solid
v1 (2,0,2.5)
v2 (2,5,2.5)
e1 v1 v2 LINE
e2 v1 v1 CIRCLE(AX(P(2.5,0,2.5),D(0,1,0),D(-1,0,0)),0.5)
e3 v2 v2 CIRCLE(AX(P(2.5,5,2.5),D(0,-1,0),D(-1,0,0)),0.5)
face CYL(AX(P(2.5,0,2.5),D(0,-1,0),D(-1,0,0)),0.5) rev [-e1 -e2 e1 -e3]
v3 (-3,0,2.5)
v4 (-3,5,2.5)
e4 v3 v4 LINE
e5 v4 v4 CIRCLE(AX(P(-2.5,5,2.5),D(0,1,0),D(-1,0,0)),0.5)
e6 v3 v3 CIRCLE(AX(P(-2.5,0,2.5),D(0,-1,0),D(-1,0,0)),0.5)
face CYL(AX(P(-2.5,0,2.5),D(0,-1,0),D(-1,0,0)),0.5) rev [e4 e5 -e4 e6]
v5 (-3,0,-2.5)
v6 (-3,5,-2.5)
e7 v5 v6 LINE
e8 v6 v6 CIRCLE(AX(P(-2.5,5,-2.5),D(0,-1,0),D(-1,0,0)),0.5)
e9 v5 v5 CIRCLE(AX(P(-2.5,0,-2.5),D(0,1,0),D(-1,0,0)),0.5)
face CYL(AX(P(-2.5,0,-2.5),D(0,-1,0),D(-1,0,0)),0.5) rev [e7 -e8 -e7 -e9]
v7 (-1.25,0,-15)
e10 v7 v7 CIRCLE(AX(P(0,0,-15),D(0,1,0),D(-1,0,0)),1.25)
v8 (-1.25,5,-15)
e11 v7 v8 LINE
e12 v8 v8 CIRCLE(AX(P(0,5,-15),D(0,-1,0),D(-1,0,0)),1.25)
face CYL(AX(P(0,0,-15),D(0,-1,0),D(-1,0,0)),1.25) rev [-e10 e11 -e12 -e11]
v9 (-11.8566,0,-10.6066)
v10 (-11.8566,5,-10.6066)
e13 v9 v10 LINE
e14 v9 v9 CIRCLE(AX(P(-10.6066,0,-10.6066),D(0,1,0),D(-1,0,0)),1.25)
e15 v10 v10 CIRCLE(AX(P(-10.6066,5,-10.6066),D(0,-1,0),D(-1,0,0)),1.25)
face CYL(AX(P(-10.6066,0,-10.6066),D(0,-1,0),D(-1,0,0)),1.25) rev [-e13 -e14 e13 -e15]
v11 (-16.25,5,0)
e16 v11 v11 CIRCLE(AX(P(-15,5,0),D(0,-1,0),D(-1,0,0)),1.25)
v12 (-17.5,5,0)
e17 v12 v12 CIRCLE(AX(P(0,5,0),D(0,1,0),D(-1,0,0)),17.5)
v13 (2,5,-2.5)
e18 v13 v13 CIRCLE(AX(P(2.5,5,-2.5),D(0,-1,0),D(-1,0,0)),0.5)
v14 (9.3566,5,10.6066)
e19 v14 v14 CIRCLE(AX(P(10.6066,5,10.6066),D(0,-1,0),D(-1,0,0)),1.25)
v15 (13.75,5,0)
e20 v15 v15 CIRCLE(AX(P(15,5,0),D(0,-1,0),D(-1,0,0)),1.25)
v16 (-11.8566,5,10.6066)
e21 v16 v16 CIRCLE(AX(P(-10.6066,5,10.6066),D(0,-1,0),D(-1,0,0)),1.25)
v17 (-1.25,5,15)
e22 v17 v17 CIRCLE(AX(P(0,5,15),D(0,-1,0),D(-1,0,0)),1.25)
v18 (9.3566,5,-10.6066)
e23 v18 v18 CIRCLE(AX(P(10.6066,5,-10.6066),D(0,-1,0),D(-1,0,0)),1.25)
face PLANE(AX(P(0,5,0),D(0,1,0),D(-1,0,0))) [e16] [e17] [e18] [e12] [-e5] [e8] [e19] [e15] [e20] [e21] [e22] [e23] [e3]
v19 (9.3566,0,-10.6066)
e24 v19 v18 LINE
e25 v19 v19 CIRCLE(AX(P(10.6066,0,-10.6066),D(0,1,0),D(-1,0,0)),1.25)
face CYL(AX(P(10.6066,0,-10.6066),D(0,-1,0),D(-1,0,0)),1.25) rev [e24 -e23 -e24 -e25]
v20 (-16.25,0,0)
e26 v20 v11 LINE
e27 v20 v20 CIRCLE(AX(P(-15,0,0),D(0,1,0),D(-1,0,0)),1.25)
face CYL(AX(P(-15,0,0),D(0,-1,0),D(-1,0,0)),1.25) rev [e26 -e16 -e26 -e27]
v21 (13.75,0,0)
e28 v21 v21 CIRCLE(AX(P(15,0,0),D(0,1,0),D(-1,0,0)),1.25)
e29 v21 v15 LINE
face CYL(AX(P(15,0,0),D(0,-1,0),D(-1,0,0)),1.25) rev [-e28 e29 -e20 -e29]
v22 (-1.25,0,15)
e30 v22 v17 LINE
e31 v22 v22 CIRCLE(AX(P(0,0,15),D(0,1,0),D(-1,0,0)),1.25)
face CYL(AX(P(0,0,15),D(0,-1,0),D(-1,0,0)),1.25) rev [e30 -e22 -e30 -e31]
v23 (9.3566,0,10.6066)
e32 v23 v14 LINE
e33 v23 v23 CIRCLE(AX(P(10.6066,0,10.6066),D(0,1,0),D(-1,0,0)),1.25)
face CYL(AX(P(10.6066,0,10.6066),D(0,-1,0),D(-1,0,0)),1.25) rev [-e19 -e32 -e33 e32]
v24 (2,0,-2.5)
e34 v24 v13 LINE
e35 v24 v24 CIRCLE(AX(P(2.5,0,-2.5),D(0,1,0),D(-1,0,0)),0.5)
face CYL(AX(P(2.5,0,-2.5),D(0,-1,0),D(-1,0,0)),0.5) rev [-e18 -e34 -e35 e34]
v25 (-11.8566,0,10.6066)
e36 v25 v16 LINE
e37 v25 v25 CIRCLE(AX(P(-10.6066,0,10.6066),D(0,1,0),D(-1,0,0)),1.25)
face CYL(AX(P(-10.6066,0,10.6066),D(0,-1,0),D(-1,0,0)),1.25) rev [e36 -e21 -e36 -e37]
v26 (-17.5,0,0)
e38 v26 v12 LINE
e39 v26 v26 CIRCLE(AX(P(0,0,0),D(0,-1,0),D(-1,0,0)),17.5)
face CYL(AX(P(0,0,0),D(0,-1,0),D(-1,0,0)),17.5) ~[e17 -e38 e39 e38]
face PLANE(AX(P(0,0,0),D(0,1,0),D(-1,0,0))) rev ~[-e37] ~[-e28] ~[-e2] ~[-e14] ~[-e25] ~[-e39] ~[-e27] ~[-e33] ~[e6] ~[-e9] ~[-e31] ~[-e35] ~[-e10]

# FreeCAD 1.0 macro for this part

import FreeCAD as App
import Part
import Sketcher
from FreeCAD import Vector
Q = App.Units.Quantity

doc = App.newDocument("Part")
body = doc.addObject("PartDesign::Body", "Body")

# Sketch on XZ plane
sketch1 = body.newObject("Sketcher::SketchObject", "Sketch")
sketch1.AttachmentSupport = (doc.getObject("XZ_Plane"), [""])
sketch1.MapMode = "FlatFace"
sketch1.addGeometry(Part.Circle(Vector(0, 0, 0), Vector(0, 0, 1), 17.5), False)
sketch1.addGeometry(Part.Circle(Vector(-2.5, 2.5, 0), Vector(0, 0, 1), 0.5), False)
sketch1.addGeometry(Part.Circle(Vector(-2.5, -2.5, 0), Vector(0, 0, 1), 0.5), False)
sketch1.addGeometry(Part.Circle(Vector(-10.6066, 10.6066, 0), Vector(0, 0, 1), 1.25), False)
sketch1.addGeometry(Part.Circle(Vector(-15, 0, 0), Vector(0, 0, 1), 1.25), False)
sketch1.addGeometry(Part.Circle(Vector(-10.6066, -10.6066, 0), Vector(0, 0, 1), 1.25), False)
sketch1.addGeometry(Part.Circle(Vector(2.5, 2.5, 0), Vector(0, 0, 1), 0.5), False)
sketch1.addGeometry(Part.Circle(Vector(0, 15, 0), Vector(0, 0, 1), 1.25), False)
sketch1.addGeometry(Part.Circle(Vector(0, -15, 0), Vector(0, 0, 1), 1.25), False)
sketch1.addGeometry(Part.Circle(Vector(2.5, -2.5, 0), Vector(0, 0, 1), 0.5), False)
sketch1.addGeometry(Part.Circle(Vector(10.6066, 10.6066, 0), Vector(0, 0, 1), 1.25), False)
sketch1.addGeometry(Part.Circle(Vector(10.6066, -10.6066, 0), Vector(0, 0, 1), 1.25), False)
sketch1.addGeometry(Part.Circle(Vector(15, 0, 0), Vector(0, 0, 1), 1.25), False)
sketch1.addConstraint(Sketcher.Constraint("Coincident", 0, 3, -1, 1))
sketch1.addConstraint(Sketcher.Constraint("Equal", 1, 2))
sketch1.addConstraint(Sketcher.Constraint("Equal", 3, 4))
sketch1.addConstraint(Sketcher.Constraint("Equal", 4, 5))
sketch1.addConstraint(Sketcher.Constraint("Equal", 2, 6))
sketch1.addConstraint(Sketcher.Constraint("Equal", 5, 7))
sketch1.addConstraint(Sketcher.Constraint("Equal", 7, 8))
sketch1.addConstraint(Sketcher.Constraint("Equal", 6, 9))
sketch1.addConstraint(Sketcher.Constraint("Equal", 8, 10))
sketch1.addConstraint(Sketcher.Constraint("Equal", 10, 11))
sketch1.addConstraint(Sketcher.Constraint("Equal", 11, 12))
sketch1.addConstraint(Sketcher.Constraint("Symmetric", 2, 3, 6, 3, -1, 1))
sketch1.addConstraint(Sketcher.Constraint("Symmetric", 7, 3, 8, 3, -1, 1))
sketch1.addConstraint(Sketcher.Constraint("Symmetric", 1, 3, 9, 3, -1, 1))
sketch1.addConstraint(Sketcher.Constraint("Symmetric", 5, 3, 10, 3, -1, 1))
sketch1.addConstraint(Sketcher.Constraint("Symmetric", 3, 3, 11, 3, -1, 1))
sketch1.addConstraint(Sketcher.Constraint("Symmetric", 4, 3, 12, 3, -1, 1))
sketch1.addConstraint(Sketcher.Constraint("Symmetric", 1, 3, 6, 3, -2))
sketch1.addConstraint(Sketcher.Constraint("Symmetric", 3, 3, 10, 3, -2))
sketch1.addConstraint(Sketcher.Constraint("PointOnObject", 4, 3, -1))
sketch1.addConstraint(Sketcher.Constraint("PointOnObject", 7, 3, -2))
sketch1.addConstraint(Sketcher.Constraint("Diameter", 0, Q("35 mm")))
sketch1.addConstraint(Sketcher.Constraint("Diameter", 1, Q("1 mm")))
sketch1.addConstraint(Sketcher.Constraint("Diameter", 3, Q("2.5 mm")))
sketch1.addConstraint(Sketcher.Constraint("DistanceY", 2, 3, 1, 3, Q("5 mm")))
sketch1.addConstraint(Sketcher.Constraint("DistanceX", 1, 3, 6, 3, Q("5 mm")))
sketch1.addConstraint(Sketcher.Constraint("DistanceX", 4, 3, -1, 1, Q("15 mm")))
sketch1.addConstraint(Sketcher.Constraint("DistanceY", -1, 1, 7, 3, Q("15 mm")))
sketch1.addConstraint(Sketcher.Constraint("DistanceY", 5, 3, 3, 3, Q("21.2132 mm")))
sketch1.addConstraint(Sketcher.Constraint("DistanceX", 3, 3, -1, 1, Q("10.6066 mm")))
pad1 = body.newObject("PartDesign::Pad", "Pad")
pad1.Profile = sketch1
pad1.Length = 5
pad1.Reversed = True

doc.recompute()
